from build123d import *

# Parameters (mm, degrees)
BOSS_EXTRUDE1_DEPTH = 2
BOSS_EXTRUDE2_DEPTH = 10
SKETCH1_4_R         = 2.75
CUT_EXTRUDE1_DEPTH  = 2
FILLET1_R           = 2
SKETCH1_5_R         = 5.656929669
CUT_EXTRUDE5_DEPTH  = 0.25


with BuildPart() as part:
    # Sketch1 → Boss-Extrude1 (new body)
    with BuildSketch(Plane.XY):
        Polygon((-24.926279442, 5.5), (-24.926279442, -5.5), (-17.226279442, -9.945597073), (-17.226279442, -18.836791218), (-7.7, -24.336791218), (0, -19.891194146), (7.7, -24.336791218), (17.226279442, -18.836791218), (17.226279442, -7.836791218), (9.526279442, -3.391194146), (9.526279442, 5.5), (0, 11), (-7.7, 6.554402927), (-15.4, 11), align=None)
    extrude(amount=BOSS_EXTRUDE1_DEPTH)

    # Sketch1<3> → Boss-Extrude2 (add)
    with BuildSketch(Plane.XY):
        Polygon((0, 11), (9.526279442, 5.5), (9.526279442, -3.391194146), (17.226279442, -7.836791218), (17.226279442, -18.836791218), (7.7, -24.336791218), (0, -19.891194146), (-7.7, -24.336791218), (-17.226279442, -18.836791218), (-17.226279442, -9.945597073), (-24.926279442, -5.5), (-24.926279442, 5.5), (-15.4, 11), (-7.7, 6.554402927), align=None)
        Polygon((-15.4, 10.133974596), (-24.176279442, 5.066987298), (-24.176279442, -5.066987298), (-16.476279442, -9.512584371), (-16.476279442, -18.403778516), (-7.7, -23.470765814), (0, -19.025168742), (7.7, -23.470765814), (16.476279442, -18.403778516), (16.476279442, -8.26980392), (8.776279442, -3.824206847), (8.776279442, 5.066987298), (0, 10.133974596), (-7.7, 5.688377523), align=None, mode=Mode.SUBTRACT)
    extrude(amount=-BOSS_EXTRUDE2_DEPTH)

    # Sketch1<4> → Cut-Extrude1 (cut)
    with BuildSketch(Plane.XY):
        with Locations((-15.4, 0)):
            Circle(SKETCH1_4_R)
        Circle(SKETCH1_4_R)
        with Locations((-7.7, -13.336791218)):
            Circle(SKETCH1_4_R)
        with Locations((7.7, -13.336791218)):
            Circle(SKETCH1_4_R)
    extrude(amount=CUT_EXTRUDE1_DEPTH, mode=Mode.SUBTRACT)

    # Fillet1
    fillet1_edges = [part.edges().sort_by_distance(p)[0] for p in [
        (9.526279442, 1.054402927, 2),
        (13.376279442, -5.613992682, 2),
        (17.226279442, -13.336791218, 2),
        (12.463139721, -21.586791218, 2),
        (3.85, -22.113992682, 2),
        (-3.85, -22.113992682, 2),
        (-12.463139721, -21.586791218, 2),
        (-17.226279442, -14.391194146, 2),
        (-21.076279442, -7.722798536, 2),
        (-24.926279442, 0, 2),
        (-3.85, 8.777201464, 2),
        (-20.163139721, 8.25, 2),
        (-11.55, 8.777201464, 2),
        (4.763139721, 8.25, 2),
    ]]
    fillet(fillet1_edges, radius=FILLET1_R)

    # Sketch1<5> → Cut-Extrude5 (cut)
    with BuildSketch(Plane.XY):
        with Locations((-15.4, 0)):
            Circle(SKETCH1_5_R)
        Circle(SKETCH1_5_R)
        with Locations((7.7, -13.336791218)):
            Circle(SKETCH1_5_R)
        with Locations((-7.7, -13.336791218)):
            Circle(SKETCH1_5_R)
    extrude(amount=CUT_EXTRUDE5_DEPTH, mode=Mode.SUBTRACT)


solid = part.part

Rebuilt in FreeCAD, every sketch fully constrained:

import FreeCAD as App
import Part
import Sketcher

V = App.Vector
Q = App.Units.Quantity


def edges_at(feature, points):
    """Names of the edges that pass closest to the given points."""
    edges = feature.Shape.Edges
    near = lambda p: min(range(len(edges)), key=lambda i: edges[i].distToShape(Part.Vertex(*p))[0])
    return sorted({f"Edge{near(p) + 1}" for p in points})

doc = App.newDocument("Part")
body = doc.addObject("PartDesign::Body", "Body")

sketch1 = body.newObject("Sketcher::SketchObject", "Sketch")
sketch1.AttachmentSupport = (doc.getObject("XY_Plane"), [""])
sketch1.MapMode = "FlatFace"
sketch1.addGeometry([
    Part.LineSegment(V(-25, 6, 0), V(-25, -6, 0)),
    Part.LineSegment(V(-25, -6, 0), V(-17, -10, 0)),
    Part.LineSegment(V(-17, -10, 0), V(-17, -19, 0)),
    Part.LineSegment(V(-17, -19, 0), V(-8, -24, 0)),
    Part.LineSegment(V(-8, -24, 0), V(0, -20, 0)),
    Part.LineSegment(V(0, -20, 0), V(8, -24, 0)),
    Part.LineSegment(V(8, -24, 0), V(17, -19, 0)),
    Part.LineSegment(V(17, -19, 0), V(17, -8, 0)),
    Part.LineSegment(V(17, -8, 0), V(10, -3, 0)),
    Part.LineSegment(V(10, -3, 0), V(10, 6, 0)),
    Part.LineSegment(V(10, 6, 0), V(0, 11, 0)),
    Part.LineSegment(V(0, 11, 0), V(-8, 7, 0)),
    Part.LineSegment(V(-8, 7, 0), V(-15, 11, 0)),
    Part.LineSegment(V(-15, 11, 0), V(-25, 6, 0)),
], False)
sketch1.addConstraint([
    Sketcher.Constraint("Coincident", 0, 2, 1, 1),
    Sketcher.Constraint("Coincident", 1, 2, 2, 1),
    Sketcher.Constraint("Coincident", 2, 2, 3, 1),
    Sketcher.Constraint("Coincident", 3, 2, 4, 1),
    Sketcher.Constraint("Coincident", 4, 2, 5, 1),
    Sketcher.Constraint("Coincident", 5, 2, 6, 1),
    Sketcher.Constraint("Coincident", 6, 2, 7, 1),
    Sketcher.Constraint("Coincident", 7, 2, 8, 1),
    Sketcher.Constraint("Coincident", 8, 2, 9, 1),
    Sketcher.Constraint("Coincident", 9, 2, 10, 1),
    Sketcher.Constraint("Coincident", 10, 2, 11, 1),
    Sketcher.Constraint("Coincident", 11, 2, 12, 1),
    Sketcher.Constraint("Coincident", 12, 2, 13, 1),
    Sketcher.Constraint("Coincident", 13, 2, 0, 1),
    Sketcher.Constraint("Vertical", 0),
    Sketcher.Constraint("Vertical", 2),
    Sketcher.Constraint("Vertical", 7),
    Sketcher.Constraint("Vertical", 9),
    Sketcher.Constraint("Symmetric", 3, 2, 5, 2, -2),
    Sketcher.Constraint("Symmetric", 2, 2, 6, 2, -2),
    Sketcher.Constraint("PointOnObject", 4, 2, -2),
    Sketcher.Constraint("PointOnObject", 10, 2, -2),
    Sketcher.Constraint("Parallel", 1, 3),
    Sketcher.Constraint("Parallel", 3, 5),
    Sketcher.Constraint("Parallel", 5, 8),
    Sketcher.Constraint("Parallel", 8, 10),
    Sketcher.Constraint("Parallel", 6, 11),
    Sketcher.Constraint("Parallel", 10, 12),
    Sketcher.Constraint("Parallel", 11, 13),
    Sketcher.Constraint("Horizontal", 10, 2, 12, 2),
    Sketcher.Constraint("Horizontal", 9, 2, 13, 2),
    Sketcher.Constraint("Vertical", 3, 2, 11, 2),
    Sketcher.Constraint("Equal", 0, 7),
    Sketcher.Constraint("Equal", 2, 9),
    Sketcher.Constraint("DistanceY", 0, 2, 0, 1, 11.0),
    Sketcher.Constraint("Angle", 1, Q("-30 deg")),
    Sketcher.Constraint("Distance", 3, 11.0),
    Sketcher.Constraint("DistanceY", -1, 1, 10, 2, 11.0),
    Sketcher.Constraint("DistanceX", 3, 2, -1, 1, 7.7),
    Sketcher.Constraint("DistanceY", 2, 2, 2, 1, 8.891194),
])
pad1 = body.newObject("PartDesign::Pad", "Pad")
pad1.Profile = sketch1
pad1.Length = 2

sketch2 = body.newObject("Sketcher::SketchObject", "Sketch001")
sketch2.AttachmentSupport = (doc.getObject("XY_Plane"), [""])
sketch2.MapMode = "FlatFace"
sketch2.addGeometry([
    Part.LineSegment(V(10, 6, 0), V(0, 11, 0)),
    Part.LineSegment(V(0, 11, 0), V(-8, 7, 0)),
    Part.LineSegment(V(-8, 7, 0), V(-15, 11, 0)),
    Part.LineSegment(V(-15, 11, 0), V(-25, 6, 0)),
    Part.LineSegment(V(-25, 6, 0), V(-25, -6, 0)),
    Part.LineSegment(V(-25, -6, 0), V(-17, -10, 0)),
    Part.LineSegment(V(-17, -10, 0), V(-17, -19, 0)),
    Part.LineSegment(V(-17, -19, 0), V(-8, -24, 0)),
    Part.LineSegment(V(-8, -24, 0), V(0, -20, 0)),
    Part.LineSegment(V(0, -20, 0), V(8, -24, 0)),
    Part.LineSegment(V(8, -24, 0), V(17, -19, 0)),
    Part.LineSegment(V(17, -19, 0), V(17, -8, 0)),
    Part.LineSegment(V(17, -8, 0), V(10, -3, 0)),
    Part.LineSegment(V(10, -3, 0), V(10, 6, 0)),
    Part.LineSegment(V(-15, 10, 0), V(-8, 6, 0)),
    Part.LineSegment(V(-8, 6, 0), V(0, 10, 0)),
    Part.LineSegment(V(0, 10, 0), V(9, 5, 0)),
    Part.LineSegment(V(9, 5, 0), V(9, -4, 0)),
    Part.LineSegment(V(9, -4, 0), V(16, -8, 0)),
    Part.LineSegment(V(16, -8, 0), V(16, -18, 0)),
    Part.LineSegment(V(16, -18, 0), V(8, -23, 0)),
    Part.LineSegment(V(8, -23, 0), V(0, -19, 0)),
    Part.LineSegment(V(0, -19, 0), V(-8, -23, 0)),
    Part.LineSegment(V(-8, -23, 0), V(-16, -18, 0)),
    Part.LineSegment(V(-16, -18, 0), V(-16, -10, 0)),
    Part.LineSegment(V(-16, -10, 0), V(-24, -5, 0)),
    Part.LineSegment(V(-24, -5, 0), V(-24, 5, 0)),
    Part.LineSegment(V(-24, 5, 0), V(-15, 10, 0)),
], False)
sketch2.addConstraint([
    Sketcher.Constraint("Coincident", 0, 2, 1, 1),
    Sketcher.Constraint("Coincident", 1, 2, 2, 1),
    Sketcher.Constraint("Coincident", 2, 2, 3, 1),
    Sketcher.Constraint("Coincident", 3, 2, 4, 1),
    Sketcher.Constraint("Coincident", 4, 2, 5, 1),
    Sketcher.Constraint("Coincident", 5, 2, 6, 1),
    Sketcher.Constraint("Coincident", 6, 2, 7, 1),
    Sketcher.Constraint("Coincident", 7, 2, 8, 1),
    Sketcher.Constraint("Coincident", 8, 2, 9, 1),
    Sketcher.Constraint("Coincident", 9, 2, 10, 1),
    Sketcher.Constraint("Coincident", 10, 2, 11, 1),
    Sketcher.Constraint("Coincident", 11, 2, 12, 1),
    Sketcher.Constraint("Coincident", 12, 2, 13, 1),
    Sketcher.Constraint("Coincident", 13, 2, 0, 1),
    Sketcher.Constraint("Coincident", 14, 2, 15, 1),
    Sketcher.Constraint("Coincident", 15, 2, 16, 1),
    Sketcher.Constraint("Coincident", 16, 2, 17, 1),
    Sketcher.Constraint("Coincident", 17, 2, 18, 1),
    Sketcher.Constraint("Coincident", 18, 2, 19, 1),
    Sketcher.Constraint("Coincident", 19, 2, 20, 1),
    Sketcher.Constraint("Coincident", 20, 2, 21, 1),
    Sketcher.Constraint("Coincident", 21, 2, 22, 1),
    Sketcher.Constraint("Coincident", 22, 2, 23, 1),
    Sketcher.Constraint("Coincident", 23, 2, 24, 1),
    Sketcher.Constraint("Coincident", 24, 2, 25, 1),
    Sketcher.Constraint("Coincident", 25, 2, 26, 1),
    Sketcher.Constraint("Coincident", 26, 2, 27, 1),
    Sketcher.Constraint("Coincident", 27, 2, 14, 1),
    Sketcher.Constraint("Vertical", 4),
    Sketcher.Constraint("Vertical", 6),
    Sketcher.Constraint("Vertical", 11),
    Sketcher.Constraint("Vertical", 13),
    Sketcher.Constraint("Vertical", 17),
    Sketcher.Constraint("Vertical", 19),
    Sketcher.Constraint("Vertical", 24),
    Sketcher.Constraint("Vertical", 26),
    Sketcher.Constraint("Symmetric", 7, 2, 9, 2, -2),
    Sketcher.Constraint("Symmetric", 6, 2, 10, 2, -2),
    Sketcher.Constraint("Symmetric", 20, 2, 22, 2, -2),
    Sketcher.Constraint("Symmetric", 19, 2, 23, 2, -2),
    Sketcher.Constraint("PointOnObject", 0, 2, -2),
    Sketcher.Constraint("PointOnObject", 8, 2, -2),
    Sketcher.Constraint("PointOnObject", 15, 2, -2),
    Sketcher.Constraint("PointOnObject", 21, 2, -2),
    Sketcher.Constraint("Parallel", 0, 2),
    Sketcher.Constraint("Parallel", 1, 3),
    Sketcher.Constraint("Parallel", 2, 5),
    Sketcher.Constraint("Parallel", 5, 7),
    Sketcher.Constraint("Parallel", 3, 8),
    Sketcher.Constraint("Parallel", 7, 9),
    Sketcher.Constraint("Parallel", 9, 12),
    Sketcher.Constraint("Parallel", 12, 14),
    Sketcher.Constraint("Parallel", 10, 15),
    Sketcher.Constraint("Parallel", 14, 16),
    Sketcher.Constraint("Parallel", 16, 18),
    Sketcher.Constraint("Parallel", 15, 20),
    Sketcher.Constraint("Parallel", 18, 21),
    Sketcher.Constraint("Parallel", 23, 25),
    Sketcher.Constraint("Parallel", 22, 27),
    Sketcher.Constraint("Horizontal", 0, 2, 2, 2),
    Sketcher.Constraint("Horizontal", 3, 2, 13, 2),
    Sketcher.Constraint("Horizontal", 16, 2, 26, 2),
    Sketcher.Constraint("Horizontal", 15, 2, 27, 2),
    Sketcher.Constraint("Vertical", 1, 2, 7, 2),
    Sketcher.Constraint("Vertical", 7, 2, 14, 2),
    Sketcher.Constraint("Vertical", 9, 2, 20, 2),
    Sketcher.Constraint("Equal", 4, 11),
    Sketcher.Constraint("Equal", 6, 13),
    Sketcher.Constraint("Equal", 13, 17),
    Sketcher.Constraint("Equal", 17, 24),
    Sketcher.Constraint("Equal", 19, 26),
    Sketcher.Constraint("DistanceY", 4, 2, 4, 1, 11.0),
    Sketcher.Constraint("Angle", 0, Q("150 deg")),
    Sketcher.Constraint("Distance", 0, 11.0),
    Sketcher.Constraint("DistanceY", -1, 1, 0, 2, 11.0),
    Sketcher.Constraint("DistanceX", 1, 2, -1, 1, 7.7),
    Sketcher.Constraint("DistanceX", 16, 2, 13, 2, 0.75),
    Sketcher.Constraint("DistanceY", 6, 2, 6, 1, 8.891194),
    Sketcher.Constraint("DistanceY", 19, 2, 19, 1, 10.133975),
    Sketcher.Constraint("DistanceY", 19, 2, -1, 1, 18.403779),
])
pad2 = body.newObject("PartDesign::Pad", "Pad001")
pad2.Profile = sketch2
pad2.Length = 10
pad2.Reversed = True

sketch3 = body.newObject("Sketcher::SketchObject", "Sketch002")
sketch3.AttachmentSupport = (doc.getObject("XY_Plane"), [""])
sketch3.MapMode = "FlatFace"
sketch3.addGeometry([
    Part.Circle(V(-15.4, 0, 0), V(0, 0, 1), 2.8),
    Part.Circle(V(0, 0, 0), V(0, 0, 1), 2.8),
    Part.Circle(V(-7.7, -13.3, 0), V(0, 0, 1), 2.8),
    Part.Circle(V(7.7, -13.3, 0), V(0, 0, 1), 2.8),
], False)
sketch3.addConstraint([
    Sketcher.Constraint("Coincident", 1, 3, -1, 1),
    Sketcher.Constraint("Equal", 0, 1),
    Sketcher.Constraint("Equal", 1, 2),
    Sketcher.Constraint("Equal", 2, 3),
    Sketcher.Constraint("Symmetric", 2, 3, 3, 3, -2),
    Sketcher.Constraint("PointOnObject", 0, 3, -1),
    Sketcher.Constraint("Diameter", 0, 5.5),
    Sketcher.Constraint("DistanceX", 0, 3, -1, 1, 15.4),
    Sketcher.Constraint("DistanceX", 2, 3, -1, 1, 7.7),
    Sketcher.Constraint("DistanceY", 2, 3, -1, 1, 13.336791),
])
pocket1 = body.newObject("PartDesign::Pocket", "Pocket")
pocket1.Profile = sketch3
pocket1.Length = 2
pocket1.Reversed = True
doc.recompute()

fillet = body.newObject("PartDesign::Fillet", "Fillet")
fillet.Base = (pocket1, edges_at(pocket1, [
    (9.526, 1.054, 2),
    (13.376, -5.614, 2),
    (17.226, -13.337, 2),
    (12.463, -21.587, 2),
    (3.85, -22.114, 2),
    (-3.85, -22.114, 2),
    (-12.463, -21.587, 2),
    (-17.226, -14.391, 2),
    (-21.076, -7.723, 2),
    (-24.926, 0, 2),
    (-3.85, 8.777, 2),
    (-20.163, 8.25, 2),
    (-11.55, 8.777, 2),
    (4.763, 8.25, 2),
]))
fillet.Radius = 2

sketch4 = body.newObject("Sketcher::SketchObject", "Sketch003")
sketch4.AttachmentSupport = (doc.getObject("XY_Plane"), [""])
sketch4.MapMode = "FlatFace"
sketch4.addGeometry([
    Part.Circle(V(-15, 0, 0), V(0, 0, 1), 6),
    Part.Circle(V(0, 0, 0), V(0, 0, 1), 6),
    Part.Circle(V(8, -13, 0), V(0, 0, 1), 6),
    Part.Circle(V(-8, -13, 0), V(0, 0, 1), 6),
], False)
sketch4.addConstraint([
    Sketcher.Constraint("Coincident", 1, 3, -1, 1),
    Sketcher.Constraint("Equal", 0, 1),
    Sketcher.Constraint("Equal", 1, 2),
    Sketcher.Constraint("Equal", 2, 3),
    Sketcher.Constraint("Symmetric", 2, 3, 3, 3, -2),
    Sketcher.Constraint("PointOnObject", 0, 3, -1),
    Sketcher.Constraint("DistanceX", 0, 3, -1, 1, 15.4),
    Sketcher.Constraint("DistanceX", -1, 1, 2, 3, 7.7),
    Sketcher.Constraint("Diameter", 0, 11.313859),
    Sketcher.Constraint("DistanceY", 2, 3, -1, 1, 13.336791),
])
pocket2 = body.newObject("PartDesign::Pocket", "Pocket001")
pocket2.Profile = sketch4
pocket2.Length = 0.25
pocket2.Reversed = True

doc.recompute()
